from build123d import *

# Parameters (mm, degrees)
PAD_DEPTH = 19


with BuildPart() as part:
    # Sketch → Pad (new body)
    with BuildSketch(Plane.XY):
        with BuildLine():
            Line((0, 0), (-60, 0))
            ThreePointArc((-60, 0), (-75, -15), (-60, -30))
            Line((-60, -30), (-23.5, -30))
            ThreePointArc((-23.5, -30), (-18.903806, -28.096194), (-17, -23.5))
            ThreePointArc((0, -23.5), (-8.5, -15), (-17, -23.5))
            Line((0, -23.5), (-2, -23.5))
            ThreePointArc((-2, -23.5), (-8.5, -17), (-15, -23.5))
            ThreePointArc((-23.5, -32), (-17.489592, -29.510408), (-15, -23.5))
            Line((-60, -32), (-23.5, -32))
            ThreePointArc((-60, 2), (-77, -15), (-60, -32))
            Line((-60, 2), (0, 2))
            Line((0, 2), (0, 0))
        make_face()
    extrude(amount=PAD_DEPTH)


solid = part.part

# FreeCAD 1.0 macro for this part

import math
import FreeCAD as App
import Part
import Sketcher

doc = App.newDocument("Part")
params = doc.addObject("Spreadsheet::Sheet", "Params")
for row, (alias, value) in enumerate([
    ("sketch1_radius", "17 mm"),
    ("sketch1_radius2", "15 mm"),
    ("sketch1_radius3", "8.499999 mm"),
    ("sketch1_width", "60 mm"),
    ("pad1_length", "19 mm"),
], start=1):
    params.set(f"A{row}", alias)
    params.set(f"B{row}", "=" + value)
    params.setAlias(f"B{row}", alias)

body = doc.addObject("PartDesign::Body", "Body")

sketch1 = body.newObject("Sketcher::SketchObject", "Sketch")
sketch1.AttachmentSupport = (doc.getObject("XY_Plane"), [""])
sketch1.MapMode = "FlatFace"
sketch1.addGeometry([
    Part.LineSegment(App.Vector(-60, 0, 0), App.Vector(0, 0, 0)),
    Part.LineSegment(App.Vector(0, 0, 0), App.Vector(0, 2, 0)),
    Part.LineSegment(App.Vector(0, 2, 0), App.Vector(-60, 2, 0)),
    Part.ArcOfCircle(Part.Circle(App.Vector(-60, -15, 0), App.Vector(0, 0, 1), 17), math.radians(90), math.radians(270)),
    Part.LineSegment(App.Vector(-60, -32, 0), App.Vector(-23.5, -32, 0)),
    Part.ArcOfCircle(Part.Circle(App.Vector(-23.5, -23.5, 0), App.Vector(0, 0, 1), 8.5), math.radians(-90), math.radians(0)),
    Part.ArcOfCircle(Part.Circle(App.Vector(-8.5, -23.5, 0), App.Vector(0, 0, 1), 6.5), math.radians(0), math.radians(180)),
    Part.LineSegment(App.Vector(-2, -23.5, 0), App.Vector(0, -23.5, 0)),
    Part.ArcOfCircle(Part.Circle(App.Vector(-8.5, -23.5, 0), App.Vector(0, 0, 1), 8.5), math.radians(0), math.radians(180)),
    Part.ArcOfCircle(Part.Circle(App.Vector(-23.5, -23.5, 0), App.Vector(0, 0, 1), 6.5), math.radians(-90), math.radians(0)),
    Part.LineSegment(App.Vector(-23.5, -30, 0), App.Vector(-60, -30, 0)),
    Part.ArcOfCircle(Part.Circle(App.Vector(-60, -15, 0), App.Vector(0, 0, 1), 15), math.radians(90), math.radians(270)),
], False)
sketch1.addConstraint([
    Sketcher.Constraint("Coincident", 0, 2, 1, 1),
    Sketcher.Constraint("Coincident", 1, 2, 2, 1),
    Sketcher.Constraint("Tangent", 2, 2, 3, 1),
    Sketcher.Constraint("Tangent", 3, 2, 4, 1),
    Sketcher.Constraint("Tangent", 4, 2, 5, 1),
    Sketcher.Constraint("Tangent", 5, 2, 6, 2),
    Sketcher.Constraint("Coincident", 6, 1, 7, 1),
    Sketcher.Constraint("Coincident", 7, 2, 8, 1),
    Sketcher.Constraint("Tangent", 8, 2, 9, 2),
    Sketcher.Constraint("Tangent", 9, 1, 10, 1),
    Sketcher.Constraint("Tangent", 10, 2, 11, 2),
    Sketcher.Constraint("Tangent", 11, 1, 0, 1),
    Sketcher.Constraint("Horizontal", 0),
    Sketcher.Constraint("Vertical", 1),
    Sketcher.Constraint("Horizontal", 2),
    Sketcher.Constraint("Horizontal", 4),
    Sketcher.Constraint("Horizontal", 7),
    Sketcher.Constraint("Horizontal", 10),
    Sketcher.Constraint("Coincident", 0, 2, -1, 1),
    Sketcher.Constraint("Coincident", 8, 3, 6, 3),
    Sketcher.Constraint("Coincident", 9, 3, 5, 3),
    Sketcher.Constraint("Coincident", 11, 3, 3, 3),
    Sketcher.Constraint("Equal", 5, 8),
    Sketcher.Constraint("PointOnObject", 7, 2, -2),
    Sketcher.Constraint("Horizontal", 5, 3, 6, 3),
    Sketcher.Constraint("Horizontal", 5, 2, 6, 1),
    Sketcher.Constraint("Radius", 3, 17.0),
    Sketcher.Constraint("Radius", 11, 15.0),
    Sketcher.Constraint("Radius", 5, 8.499999),
    Sketcher.Constraint("DistanceX", 0, 1, 0, 2, 60.0),
])
sketch1.setExpression("Constraints[26]", "Params.sketch1_radius")
sketch1.setExpression("Constraints[27]", "Params.sketch1_radius2")
sketch1.setExpression("Constraints[28]", "Params.sketch1_radius3")
sketch1.setExpression("Constraints[29]", "Params.sketch1_width")
pad1 = body.newObject("PartDesign::Pad", "Pad")
pad1.Profile = sketch1
pad1.setExpression("Length", "Params.pad1_length")

doc.recompute()
